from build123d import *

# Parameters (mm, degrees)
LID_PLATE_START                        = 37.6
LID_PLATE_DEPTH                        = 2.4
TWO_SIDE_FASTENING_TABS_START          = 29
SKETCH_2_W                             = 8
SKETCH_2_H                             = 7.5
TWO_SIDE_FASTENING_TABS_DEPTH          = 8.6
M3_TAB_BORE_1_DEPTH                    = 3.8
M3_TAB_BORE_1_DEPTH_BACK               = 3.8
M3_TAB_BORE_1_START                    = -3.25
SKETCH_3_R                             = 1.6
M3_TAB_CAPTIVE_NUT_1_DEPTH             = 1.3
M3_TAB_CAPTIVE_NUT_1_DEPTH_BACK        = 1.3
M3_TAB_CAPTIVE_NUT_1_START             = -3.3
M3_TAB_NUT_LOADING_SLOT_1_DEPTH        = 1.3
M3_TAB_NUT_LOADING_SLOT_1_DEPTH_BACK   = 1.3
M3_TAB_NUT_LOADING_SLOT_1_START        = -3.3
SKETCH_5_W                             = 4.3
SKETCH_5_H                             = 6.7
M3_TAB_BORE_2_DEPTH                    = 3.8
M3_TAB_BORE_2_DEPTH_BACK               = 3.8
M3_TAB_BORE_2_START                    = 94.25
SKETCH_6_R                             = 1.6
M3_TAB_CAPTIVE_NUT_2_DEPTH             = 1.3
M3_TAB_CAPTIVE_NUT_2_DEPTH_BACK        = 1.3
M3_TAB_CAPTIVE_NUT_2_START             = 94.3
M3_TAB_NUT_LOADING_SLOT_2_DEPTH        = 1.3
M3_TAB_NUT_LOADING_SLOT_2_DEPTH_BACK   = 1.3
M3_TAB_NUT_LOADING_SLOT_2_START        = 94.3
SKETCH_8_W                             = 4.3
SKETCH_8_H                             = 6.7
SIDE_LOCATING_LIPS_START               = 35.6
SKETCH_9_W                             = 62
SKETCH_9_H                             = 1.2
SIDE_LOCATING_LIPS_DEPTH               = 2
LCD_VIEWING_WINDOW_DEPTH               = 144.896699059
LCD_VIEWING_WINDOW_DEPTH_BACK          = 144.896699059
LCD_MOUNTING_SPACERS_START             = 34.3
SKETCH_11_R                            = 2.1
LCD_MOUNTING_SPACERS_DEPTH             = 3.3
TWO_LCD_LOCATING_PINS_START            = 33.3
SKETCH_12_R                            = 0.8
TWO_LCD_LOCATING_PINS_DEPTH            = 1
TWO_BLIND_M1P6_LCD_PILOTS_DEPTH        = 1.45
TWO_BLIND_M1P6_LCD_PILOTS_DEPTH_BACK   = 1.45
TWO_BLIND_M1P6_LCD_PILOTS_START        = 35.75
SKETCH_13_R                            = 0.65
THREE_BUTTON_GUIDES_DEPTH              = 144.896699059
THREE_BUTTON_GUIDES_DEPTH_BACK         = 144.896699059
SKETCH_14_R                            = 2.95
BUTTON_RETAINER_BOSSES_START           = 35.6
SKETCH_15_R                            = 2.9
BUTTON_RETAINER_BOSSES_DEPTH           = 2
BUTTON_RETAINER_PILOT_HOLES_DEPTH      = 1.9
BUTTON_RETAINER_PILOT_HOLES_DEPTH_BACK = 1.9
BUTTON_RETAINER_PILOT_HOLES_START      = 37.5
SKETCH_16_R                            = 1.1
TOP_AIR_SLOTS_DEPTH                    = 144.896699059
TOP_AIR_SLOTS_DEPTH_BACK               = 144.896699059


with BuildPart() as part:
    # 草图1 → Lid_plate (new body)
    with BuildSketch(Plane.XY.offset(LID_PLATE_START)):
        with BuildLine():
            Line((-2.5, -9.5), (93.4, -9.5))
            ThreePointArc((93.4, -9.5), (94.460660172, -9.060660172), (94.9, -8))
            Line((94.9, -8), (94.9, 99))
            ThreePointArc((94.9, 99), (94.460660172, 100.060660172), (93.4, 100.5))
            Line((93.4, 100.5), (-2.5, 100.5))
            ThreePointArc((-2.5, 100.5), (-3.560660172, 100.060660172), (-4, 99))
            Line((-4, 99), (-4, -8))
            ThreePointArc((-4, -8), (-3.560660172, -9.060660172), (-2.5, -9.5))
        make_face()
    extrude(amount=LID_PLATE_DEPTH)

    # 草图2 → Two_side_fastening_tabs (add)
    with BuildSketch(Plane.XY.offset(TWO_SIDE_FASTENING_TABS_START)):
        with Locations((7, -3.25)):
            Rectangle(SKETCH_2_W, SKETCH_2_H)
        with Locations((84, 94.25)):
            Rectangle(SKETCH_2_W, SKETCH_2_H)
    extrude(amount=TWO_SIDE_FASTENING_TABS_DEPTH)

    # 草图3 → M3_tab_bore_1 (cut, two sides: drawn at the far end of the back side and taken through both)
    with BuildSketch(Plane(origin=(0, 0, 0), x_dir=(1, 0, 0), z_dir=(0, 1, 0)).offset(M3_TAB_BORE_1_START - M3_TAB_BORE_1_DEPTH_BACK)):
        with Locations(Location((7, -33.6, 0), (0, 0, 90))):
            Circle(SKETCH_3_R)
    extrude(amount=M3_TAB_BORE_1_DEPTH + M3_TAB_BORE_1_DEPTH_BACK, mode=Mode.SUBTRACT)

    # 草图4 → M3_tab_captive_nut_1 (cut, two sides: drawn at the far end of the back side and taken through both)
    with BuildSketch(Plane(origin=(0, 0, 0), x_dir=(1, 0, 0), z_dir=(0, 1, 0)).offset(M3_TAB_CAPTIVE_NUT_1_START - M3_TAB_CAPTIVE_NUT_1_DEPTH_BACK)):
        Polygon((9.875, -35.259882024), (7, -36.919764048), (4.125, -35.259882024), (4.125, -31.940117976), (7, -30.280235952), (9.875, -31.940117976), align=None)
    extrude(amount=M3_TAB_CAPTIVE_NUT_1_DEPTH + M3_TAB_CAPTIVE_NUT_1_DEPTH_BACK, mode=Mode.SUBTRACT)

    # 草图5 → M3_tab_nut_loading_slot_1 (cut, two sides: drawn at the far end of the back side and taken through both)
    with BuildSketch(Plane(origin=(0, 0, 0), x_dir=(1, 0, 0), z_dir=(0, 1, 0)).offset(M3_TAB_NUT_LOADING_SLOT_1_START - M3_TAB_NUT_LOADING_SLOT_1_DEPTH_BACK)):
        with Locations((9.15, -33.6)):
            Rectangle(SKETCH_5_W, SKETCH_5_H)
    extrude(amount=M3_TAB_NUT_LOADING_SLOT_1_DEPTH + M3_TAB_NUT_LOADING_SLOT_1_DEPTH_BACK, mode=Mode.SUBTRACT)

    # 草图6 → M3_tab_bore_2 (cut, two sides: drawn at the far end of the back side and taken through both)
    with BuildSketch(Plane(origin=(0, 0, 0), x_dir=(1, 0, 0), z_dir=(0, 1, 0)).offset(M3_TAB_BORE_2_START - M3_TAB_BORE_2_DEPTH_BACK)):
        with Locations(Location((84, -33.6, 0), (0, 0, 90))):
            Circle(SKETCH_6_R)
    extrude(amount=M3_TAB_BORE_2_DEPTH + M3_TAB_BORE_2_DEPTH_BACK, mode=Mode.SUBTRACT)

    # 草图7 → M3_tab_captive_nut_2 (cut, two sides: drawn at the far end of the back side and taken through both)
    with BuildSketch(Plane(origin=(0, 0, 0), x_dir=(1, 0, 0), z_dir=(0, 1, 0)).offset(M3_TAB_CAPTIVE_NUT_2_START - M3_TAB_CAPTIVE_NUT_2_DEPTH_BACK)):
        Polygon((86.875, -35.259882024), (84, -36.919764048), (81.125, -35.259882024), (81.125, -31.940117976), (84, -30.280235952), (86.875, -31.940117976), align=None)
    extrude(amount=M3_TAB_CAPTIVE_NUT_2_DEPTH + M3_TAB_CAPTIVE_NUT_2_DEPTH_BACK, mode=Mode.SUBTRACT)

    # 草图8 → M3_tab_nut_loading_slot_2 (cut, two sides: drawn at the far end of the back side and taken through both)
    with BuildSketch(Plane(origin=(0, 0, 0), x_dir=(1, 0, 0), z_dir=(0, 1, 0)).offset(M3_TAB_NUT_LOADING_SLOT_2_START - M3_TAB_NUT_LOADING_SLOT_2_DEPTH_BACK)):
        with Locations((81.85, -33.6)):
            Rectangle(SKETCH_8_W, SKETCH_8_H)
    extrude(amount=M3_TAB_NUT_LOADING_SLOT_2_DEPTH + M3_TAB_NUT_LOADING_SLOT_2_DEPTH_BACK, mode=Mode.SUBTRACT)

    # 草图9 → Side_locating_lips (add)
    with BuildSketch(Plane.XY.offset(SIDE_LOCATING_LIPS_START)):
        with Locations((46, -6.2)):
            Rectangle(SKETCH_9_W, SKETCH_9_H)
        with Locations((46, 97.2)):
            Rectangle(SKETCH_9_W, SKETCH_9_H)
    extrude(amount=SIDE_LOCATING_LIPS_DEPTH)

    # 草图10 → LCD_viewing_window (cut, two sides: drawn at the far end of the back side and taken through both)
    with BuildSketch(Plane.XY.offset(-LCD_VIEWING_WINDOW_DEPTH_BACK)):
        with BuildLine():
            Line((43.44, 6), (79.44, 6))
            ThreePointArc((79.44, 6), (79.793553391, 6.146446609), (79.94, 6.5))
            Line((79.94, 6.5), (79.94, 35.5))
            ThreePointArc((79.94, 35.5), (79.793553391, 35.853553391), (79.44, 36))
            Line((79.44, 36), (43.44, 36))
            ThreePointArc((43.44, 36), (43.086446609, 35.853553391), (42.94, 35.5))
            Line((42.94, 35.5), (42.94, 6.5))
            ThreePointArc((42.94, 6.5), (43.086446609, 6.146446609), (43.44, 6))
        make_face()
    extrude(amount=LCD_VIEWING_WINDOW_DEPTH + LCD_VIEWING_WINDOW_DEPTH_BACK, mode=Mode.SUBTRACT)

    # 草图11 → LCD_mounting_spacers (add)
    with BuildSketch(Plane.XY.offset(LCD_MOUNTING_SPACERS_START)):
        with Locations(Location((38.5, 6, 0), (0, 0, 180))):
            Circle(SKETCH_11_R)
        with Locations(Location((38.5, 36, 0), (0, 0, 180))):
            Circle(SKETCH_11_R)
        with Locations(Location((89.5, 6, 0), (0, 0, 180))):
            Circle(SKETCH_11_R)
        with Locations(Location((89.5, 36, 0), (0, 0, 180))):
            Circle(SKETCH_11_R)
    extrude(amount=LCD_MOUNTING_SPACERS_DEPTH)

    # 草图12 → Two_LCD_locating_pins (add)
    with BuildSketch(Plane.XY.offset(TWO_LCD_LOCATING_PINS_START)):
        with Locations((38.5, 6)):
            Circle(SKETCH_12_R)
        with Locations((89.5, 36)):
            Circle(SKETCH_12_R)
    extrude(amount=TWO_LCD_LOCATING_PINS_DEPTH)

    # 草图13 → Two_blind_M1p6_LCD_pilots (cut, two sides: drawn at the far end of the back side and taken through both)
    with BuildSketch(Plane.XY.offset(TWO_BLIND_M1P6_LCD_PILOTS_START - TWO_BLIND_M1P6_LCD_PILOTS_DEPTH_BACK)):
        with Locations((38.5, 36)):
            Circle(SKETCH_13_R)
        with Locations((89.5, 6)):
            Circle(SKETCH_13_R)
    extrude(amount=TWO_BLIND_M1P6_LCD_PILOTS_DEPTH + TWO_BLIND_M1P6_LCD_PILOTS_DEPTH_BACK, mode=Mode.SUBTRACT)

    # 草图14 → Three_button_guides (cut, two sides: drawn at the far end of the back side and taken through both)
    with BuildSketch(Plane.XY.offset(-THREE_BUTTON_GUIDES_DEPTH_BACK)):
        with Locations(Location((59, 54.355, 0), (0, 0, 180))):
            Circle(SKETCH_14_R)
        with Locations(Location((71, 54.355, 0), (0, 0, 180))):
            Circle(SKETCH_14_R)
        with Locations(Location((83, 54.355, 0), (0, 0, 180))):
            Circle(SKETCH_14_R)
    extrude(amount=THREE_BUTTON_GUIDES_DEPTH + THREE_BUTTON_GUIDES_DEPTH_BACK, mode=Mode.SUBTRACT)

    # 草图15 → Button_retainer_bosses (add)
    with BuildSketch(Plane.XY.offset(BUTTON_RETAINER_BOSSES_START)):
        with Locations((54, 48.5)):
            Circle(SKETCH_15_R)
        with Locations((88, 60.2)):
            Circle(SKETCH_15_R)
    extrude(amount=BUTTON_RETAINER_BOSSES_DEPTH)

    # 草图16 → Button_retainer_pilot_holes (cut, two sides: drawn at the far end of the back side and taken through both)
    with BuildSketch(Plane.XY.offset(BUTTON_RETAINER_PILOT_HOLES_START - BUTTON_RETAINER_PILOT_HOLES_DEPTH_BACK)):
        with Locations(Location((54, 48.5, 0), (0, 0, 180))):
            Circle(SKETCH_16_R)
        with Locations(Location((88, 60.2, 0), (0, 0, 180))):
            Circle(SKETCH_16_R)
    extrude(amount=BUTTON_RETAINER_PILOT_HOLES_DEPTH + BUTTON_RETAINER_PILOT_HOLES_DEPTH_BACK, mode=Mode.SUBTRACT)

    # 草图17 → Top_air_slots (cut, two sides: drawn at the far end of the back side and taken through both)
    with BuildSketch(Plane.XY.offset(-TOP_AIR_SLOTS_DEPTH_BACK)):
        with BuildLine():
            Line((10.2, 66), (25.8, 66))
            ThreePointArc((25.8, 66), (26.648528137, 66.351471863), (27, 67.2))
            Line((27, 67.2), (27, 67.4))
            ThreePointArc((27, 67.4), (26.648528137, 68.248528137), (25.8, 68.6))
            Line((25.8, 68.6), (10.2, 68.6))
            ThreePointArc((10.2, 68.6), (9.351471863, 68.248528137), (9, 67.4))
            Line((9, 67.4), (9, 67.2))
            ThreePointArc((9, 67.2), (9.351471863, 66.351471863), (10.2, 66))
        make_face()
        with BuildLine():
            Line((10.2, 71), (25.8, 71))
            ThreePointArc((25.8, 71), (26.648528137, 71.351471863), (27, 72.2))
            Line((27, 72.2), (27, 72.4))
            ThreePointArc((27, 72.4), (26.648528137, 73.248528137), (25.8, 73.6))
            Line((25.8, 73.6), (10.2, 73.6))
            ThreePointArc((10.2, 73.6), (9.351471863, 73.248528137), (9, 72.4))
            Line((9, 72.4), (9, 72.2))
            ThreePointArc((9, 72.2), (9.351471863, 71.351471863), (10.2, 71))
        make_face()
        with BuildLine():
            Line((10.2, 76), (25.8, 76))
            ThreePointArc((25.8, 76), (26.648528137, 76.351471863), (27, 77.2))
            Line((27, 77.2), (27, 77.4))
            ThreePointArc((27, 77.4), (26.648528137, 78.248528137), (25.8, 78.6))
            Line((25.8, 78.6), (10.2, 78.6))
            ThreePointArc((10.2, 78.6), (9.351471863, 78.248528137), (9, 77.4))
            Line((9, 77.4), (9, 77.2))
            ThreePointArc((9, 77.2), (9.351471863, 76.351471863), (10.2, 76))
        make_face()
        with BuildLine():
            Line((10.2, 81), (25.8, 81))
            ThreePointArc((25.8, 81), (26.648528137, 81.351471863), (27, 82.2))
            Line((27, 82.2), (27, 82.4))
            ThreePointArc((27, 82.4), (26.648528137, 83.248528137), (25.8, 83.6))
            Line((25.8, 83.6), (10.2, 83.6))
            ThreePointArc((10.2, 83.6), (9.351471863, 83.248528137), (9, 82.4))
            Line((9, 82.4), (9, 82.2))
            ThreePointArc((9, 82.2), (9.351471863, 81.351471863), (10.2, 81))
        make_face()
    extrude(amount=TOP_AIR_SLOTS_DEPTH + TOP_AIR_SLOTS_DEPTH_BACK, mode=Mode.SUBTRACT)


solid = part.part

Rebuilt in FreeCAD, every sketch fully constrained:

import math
import FreeCAD as App
import Part
import Sketcher
from FreeCAD import Vector
Q = App.Units.Quantity

doc = App.newDocument("Part")
body = doc.addObject("PartDesign::Body", "Body")

# Sketch on XY plane
sketch1 = doc.addObject("Sketcher::SketchObject", "Sketch")
body.addObject(sketch1)
sketch1.AttachmentSupport = (doc.XY_Plane, [""])
sketch1.MapMode = "FlatFace"
sketch1.AttachmentOffset = App.Placement(Vector(0, 0, 37.6), App.Rotation())
sketch1.addGeometry([
    Part.LineSegment(Vector(-2.5, -9.5, 0), Vector(93.4, -9.5, 0)),  # 0
    Part.ArcOfCircle(Part.Circle(Vector(93.4, -8, 0), Vector(0, 0, 1), 1.5), math.radians(-90), math.radians(0)),  # 1
    Part.LineSegment(Vector(94.9, -8, 0), Vector(94.9, 99, 0)),  # 2
    Part.ArcOfCircle(Part.Circle(Vector(93.4, 99, 0), Vector(0, 0, 1), 1.5), math.radians(0), math.radians(90)),  # 3
    Part.LineSegment(Vector(93.4, 100.5, 0), Vector(-2.5, 100.5, 0)),  # 4
    Part.ArcOfCircle(Part.Circle(Vector(-2.5, 99, 0), Vector(0, 0, 1), 1.5), math.radians(90), math.radians(180)),  # 5
    Part.LineSegment(Vector(-4, 99, 0), Vector(-4, -8, 0)),  # 6
    Part.ArcOfCircle(Part.Circle(Vector(-2.5, -8, 0), Vector(0, 0, 1), 1.5), math.radians(180), math.radians(270)),  # 7
], False)
sketch1.addConstraint([
    Sketcher.Constraint("Tangent", 0, 2, 1, 1),
    Sketcher.Constraint("Tangent", 1, 2, 2, 1),
    Sketcher.Constraint("Tangent", 2, 2, 3, 1),
    Sketcher.Constraint("Tangent", 3, 2, 4, 1),
    Sketcher.Constraint("Tangent", 4, 2, 5, 1),
    Sketcher.Constraint("Tangent", 5, 2, 6, 1),
    Sketcher.Constraint("Tangent", 6, 2, 7, 1),
    Sketcher.Constraint("Tangent", 7, 2, 0, 1),
    Sketcher.Constraint("Horizontal", 0),
    Sketcher.Constraint("Vertical", 2),
    Sketcher.Constraint("Horizontal", 4),
    Sketcher.Constraint("Vertical", 6),
    Sketcher.Constraint("Equal", 1, 3),
    Sketcher.Constraint("Equal", 3, 5),
    Sketcher.Constraint("Equal", 5, 7),
    Sketcher.Constraint("Radius", 1, Q("1.5 mm")),
    Sketcher.Constraint("DistanceY", 2, 1, 2, 2, Q("107 mm")),
    Sketcher.Constraint("DistanceX", 0, 1, 0, 2, Q("95.9 mm")),
    Sketcher.Constraint("DistanceY", 1, 3, -1, 1, Q("8 mm")),
    Sketcher.Constraint("DistanceX", 5, 2, -1, 1, Q("4 mm")),
])
pad1 = doc.addObject("PartDesign::Pad", "Pad")
body.addObject(pad1)
pad1.Profile = sketch1
pad1.Length = 2.4

# Sketch on XY plane
sketch2 = doc.addObject("Sketcher::SketchObject", "Sketch001")
body.addObject(sketch2)
sketch2.AttachmentSupport = (doc.XY_Plane, [""])
sketch2.MapMode = "FlatFace"
sketch2.AttachmentOffset = App.Placement(Vector(0, 0, 29), App.Rotation())
sketch2.addGeometry([
    Part.LineSegment(Vector(3, 0, 0), Vector(3, -7, 0)),  # 0
    Part.LineSegment(Vector(3, -7, 0), Vector(11, -7, 0)),  # 1
    Part.LineSegment(Vector(11, -7, 0), Vector(11, 0, 0)),  # 2
    Part.LineSegment(Vector(11, 0, 0), Vector(3, 0, 0)),  # 3
    Part.LineSegment(Vector(80, 98, 0), Vector(80, 90, 0)),  # 4
    Part.LineSegment(Vector(80, 90, 0), Vector(88, 90, 0)),  # 5
    Part.LineSegment(Vector(88, 90, 0), Vector(88, 98, 0)),  # 6
    Part.LineSegment(Vector(88, 98, 0), Vector(80, 98, 0)),  # 7
], False)
sketch2.addConstraint([
    Sketcher.Constraint("Coincident", 0, 2, 1, 1),
    Sketcher.Constraint("Coincident", 1, 2, 2, 1),
    Sketcher.Constraint("Coincident", 2, 2, 3, 1),
    Sketcher.Constraint("Coincident", 3, 2, 0, 1),
    Sketcher.Constraint("Coincident", 4, 2, 5, 1),
    Sketcher.Constraint("Coincident", 5, 2, 6, 1),
    Sketcher.Constraint("Coincident", 6, 2, 7, 1),
    Sketcher.Constraint("Coincident", 7, 2, 4, 1),
    Sketcher.Constraint("Vertical", 0),
    Sketcher.Constraint("Horizontal", 1),
    Sketcher.Constraint("Vertical", 2),
    Sketcher.Constraint("Horizontal", 3),
    Sketcher.Constraint("Vertical", 4),
    Sketcher.Constraint("Horizontal", 5),
    Sketcher.Constraint("Vertical", 6),
    Sketcher.Constraint("Horizontal", 7),
    Sketcher.Constraint("Equal", 3, 5),
    Sketcher.Constraint("Equal", 2, 4),
    Sketcher.Constraint("DistanceX", 1, 1, 1, 2, Q("8 mm")),
    Sketcher.Constraint("DistanceY", 0, 2, 0, 1, Q("7.5 mm")),
    Sketcher.Constraint("DistanceX", -1, 1, 0, 2, Q("3 mm")),
    Sketcher.Constraint("DistanceY", 0, 2, -1, 1, Q("7 mm")),
    Sketcher.Constraint("DistanceX", -1, 1, 4, 2, Q("80 mm")),
    Sketcher.Constraint("DistanceY", -1, 1, 6, 2, Q("98 mm")),
])
pad2 = doc.addObject("PartDesign::Pad", "Pad001")
body.addObject(pad2)
pad2.Profile = sketch2
pad2.Length = 8.6

# Sketch on XZ plane
sketch3 = doc.addObject("Sketcher::SketchObject", "Sketch002")
body.addObject(sketch3)
sketch3.AttachmentSupport = (doc.XZ_Plane, [""])
sketch3.MapMode = "FlatFace"
sketch3.AttachmentOffset = App.Placement(Vector(0, 0, 3.25), App.Rotation())
sketch3.addGeometry(Part.Circle(Vector(7, 33.6, 0), Vector(0, 0, 1), 1.6), False)
sketch3.addConstraint([
    Sketcher.Constraint("Diameter", 0, Q("3.2 mm")),
    Sketcher.Constraint("DistanceX", -1, 1, 0, 3, Q("7 mm")),
    Sketcher.Constraint("DistanceY", -1, 1, 0, 3, Q("33.6 mm")),
])
pocket1 = doc.addObject("PartDesign::Pocket", "Pocket")
body.addObject(pocket1)
pocket1.Profile = sketch3
pocket1.Type = "ThroughAll"
pocket1.Midplane = True

# Sketch on XZ plane
sketch4 = doc.addObject("Sketcher::SketchObject", "Sketch003")
body.addObject(sketch4)
sketch4.AttachmentSupport = (doc.XZ_Plane, [""])
sketch4.MapMode = "FlatFace"
sketch4.AttachmentOffset = App.Placement(Vector(0, 0, 3.3), App.Rotation())
sketch4.addGeometry([
    Part.LineSegment(Vector(7, 36.9, 0), Vector(9.9, 35.3, 0)),  # 0
    Part.LineSegment(Vector(9.9, 35.3, 0), Vector(9.9, 31.9, 0)),  # 1
    Part.LineSegment(Vector(9.9, 31.9, 0), Vector(7, 30.3, 0)),  # 2
    Part.LineSegment(Vector(7, 30.3, 0), Vector(4.1, 31.9, 0)),  # 3
    Part.LineSegment(Vector(4.1, 31.9, 0), Vector(4.1, 35.3, 0)),  # 4
    Part.LineSegment(Vector(4.1, 35.3, 0), Vector(7, 36.9, 0)),  # 5
], False)
sketch4.addConstraint([
    Sketcher.Constraint("Coincident", 0, 2, 1, 1),
    Sketcher.Constraint("Coincident", 1, 2, 2, 1),
    Sketcher.Constraint("Coincident", 2, 2, 3, 1),
    Sketcher.Constraint("Coincident", 3, 2, 4, 1),
    Sketcher.Constraint("Coincident", 4, 2, 5, 1),
    Sketcher.Constraint("Coincident", 5, 2, 0, 1),
    Sketcher.Constraint("Vertical", 1),
    Sketcher.Constraint("Vertical", 4),
    Sketcher.Constraint("Parallel", 0, 3),
    Sketcher.Constraint("Parallel", 2, 5),
    Sketcher.Constraint("Horizontal", 1, 2, 3, 2),
    Sketcher.Constraint("Horizontal", 0, 2, 4, 2),
    Sketcher.Constraint("Vertical", 2, 2, 5, 2),
    Sketcher.Constraint("Angle", 0, Q("-30 deg")),
    Sketcher.Constraint("DistanceX", -1, 1, 2, 2, Q("7 mm")),
    Sketcher.Constraint("DistanceX", 3, 2, 1, 2, Q("5.75 mm")),
    Sketcher.Constraint("DistanceY", 1, 2, 1, 1, Q("3.319764 mm")),
    Sketcher.Constraint("DistanceY", -1, 1, 0, 2, Q("35.259882 mm")),
])
pocket2 = doc.addObject("PartDesign::Pocket", "Pocket001")
body.addObject(pocket2)
pocket2.Profile = sketch4
pocket2.Type = "TwoLengths"
pocket2.Length = 1.3
pocket2.Length2 = 1.3

# Sketch on XZ plane
sketch5 = doc.addObject("Sketcher::SketchObject", "Sketch004")
body.addObject(sketch5)
sketch5.AttachmentSupport = (doc.XZ_Plane, [""])
sketch5.MapMode = "FlatFace"
sketch5.AttachmentOffset = App.Placement(Vector(0, 0, 3.3), App.Rotation())
sketch5.addGeometry([
    Part.LineSegment(Vector(7, 30.2, 0), Vector(7, 37, 0)),
    Part.LineSegment(Vector(7, 37, 0), Vector(11.3, 37, 0)),
    Part.LineSegment(Vector(11.3, 37, 0), Vector(11.3, 30.2, 0)),
    Part.LineSegment(Vector(11.3, 30.2, 0), Vector(7, 30.2, 0)),
], False)
sketch5.addConstraint([
    Sketcher.Constraint("Coincident", 0, 2, 1, 1),
    Sketcher.Constraint("Coincident", 1, 2, 2, 1),
    Sketcher.Constraint("Coincident", 2, 2, 3, 1),
    Sketcher.Constraint("Coincident", 3, 2, 0, 1),
    Sketcher.Constraint("Vertical", 0),
    Sketcher.Constraint("Horizontal", 1),
    Sketcher.Constraint("Vertical", 2),
    Sketcher.Constraint("Horizontal", 3),
    Sketcher.Constraint("DistanceX", 1, 1, 1, 2, Q("4.3 mm")),
    Sketcher.Constraint("DistanceY", 0, 1, 0, 2, Q("6.7 mm")),
    Sketcher.Constraint("DistanceX", -1, 1, 0, 2, Q("7 mm")),
    Sketcher.Constraint("DistanceY", -1, 1, 0, 2, Q("36.95 mm")),
])
pocket3 = doc.addObject("PartDesign::Pocket", "Pocket002")
body.addObject(pocket3)
pocket3.Profile = sketch5
pocket3.Type = "TwoLengths"
pocket3.Length = 1.3
pocket3.Length2 = 1.3

# Sketch on XZ plane
sketch6 = doc.addObject("Sketcher::SketchObject", "Sketch005")
body.addObject(sketch6)
sketch6.AttachmentSupport = (doc.XZ_Plane, [""])
sketch6.MapMode = "FlatFace"
sketch6.AttachmentOffset = App.Placement(Vector(0, 0, -94.25), App.Rotation())
sketch6.addGeometry(Part.Circle(Vector(84, 33.6, 0), Vector(0, 0, 1), 1.6), False)
sketch6.addConstraint([
    Sketcher.Constraint("Diameter", 0, Q("3.2 mm")),
    Sketcher.Constraint("DistanceX", -1, 1, 0, 3, Q("84 mm")),
    Sketcher.Constraint("DistanceY", -1, 1, 0, 3, Q("33.6 mm")),
])
pocket4 = doc.addObject("PartDesign::Pocket", "Pocket003")
body.addObject(pocket4)
pocket4.Profile = sketch6
pocket4.Type = "ThroughAll"
pocket4.Midplane = True

# Sketch on XZ plane
sketch7 = doc.addObject("Sketcher::SketchObject", "Sketch006")
body.addObject(sketch7)
sketch7.AttachmentSupport = (doc.XZ_Plane, [""])
sketch7.MapMode = "FlatFace"
sketch7.AttachmentOffset = App.Placement(Vector(0, 0, -94.3), App.Rotation())
sketch7.addGeometry([
    Part.LineSegment(Vector(84, 36.9, 0), Vector(86.9, 35.3, 0)),  # 0
    Part.LineSegment(Vector(86.9, 35.3, 0), Vector(86.9, 31.9, 0)),  # 1
    Part.LineSegment(Vector(86.9, 31.9, 0), Vector(84, 30.3, 0)),  # 2
    Part.LineSegment(Vector(84, 30.3, 0), Vector(81.1, 31.9, 0)),  # 3
    Part.LineSegment(Vector(81.1, 31.9, 0), Vector(81.1, 35.3, 0)),  # 4
    Part.LineSegment(Vector(81.1, 35.3, 0), Vector(84, 36.9, 0)),  # 5
], False)
sketch7.addConstraint([
    Sketcher.Constraint("Coincident", 0, 2, 1, 1),
    Sketcher.Constraint("Coincident", 1, 2, 2, 1),
    Sketcher.Constraint("Coincident", 2, 2, 3, 1),
    Sketcher.Constraint("Coincident", 3, 2, 4, 1),
    Sketcher.Constraint("Coincident", 4, 2, 5, 1),
    Sketcher.Constraint("Coincident", 5, 2, 0, 1),
    Sketcher.Constraint("Vertical", 1),
    Sketcher.Constraint("Vertical", 4),
    Sketcher.Constraint("Parallel", 0, 3),
    Sketcher.Constraint("Parallel", 2, 5),
    Sketcher.Constraint("Horizontal", 1, 2, 3, 2),
    Sketcher.Constraint("Horizontal", 0, 2, 4, 2),
    Sketcher.Constraint("Vertical", 2, 2, 5, 2),
    Sketcher.Constraint("Angle", 0, Q("-30 deg")),
    Sketcher.Constraint("DistanceX", -1, 1, 2, 2, Q("84 mm")),
    Sketcher.Constraint("DistanceX", 3, 2, 1, 2, Q("5.75 mm")),
    Sketcher.Constraint("DistanceY", 1, 2, 1, 1, Q("3.319764 mm")),
    Sketcher.Constraint("DistanceY", -1, 1, 0, 2, Q("35.259882 mm")),
])
pocket5 = doc.addObject("PartDesign::Pocket", "Pocket004")
body.addObject(pocket5)
pocket5.Profile = sketch7
pocket5.Type = "TwoLengths"
pocket5.Length = 1.3
pocket5.Length2 = 1.3

# Sketch on XZ plane
sketch8 = doc.addObject("Sketcher::SketchObject", "Sketch007")
body.addObject(sketch8)
sketch8.AttachmentSupport = (doc.XZ_Plane, [""])
sketch8.MapMode = "FlatFace"
sketch8.AttachmentOffset = App.Placement(Vector(0, 0, -94.3), App.Rotation())
sketch8.addGeometry([
    Part.LineSegment(Vector(79.7, 30.2, 0), Vector(79.7, 37, 0)),
    Part.LineSegment(Vector(79.7, 37, 0), Vector(84, 37, 0)),
    Part.LineSegment(Vector(84, 37, 0), Vector(84, 30.2, 0)),
    Part.LineSegment(Vector(84, 30.2, 0), Vector(79.7, 30.2, 0)),
], False)
sketch8.addConstraint([
    Sketcher.Constraint("Coincident", 0, 2, 1, 1),
    Sketcher.Constraint("Coincident", 1, 2, 2, 1),
    Sketcher.Constraint("Coincident", 2, 2, 3, 1),
    Sketcher.Constraint("Coincident", 3, 2, 0, 1),
    Sketcher.Constraint("Vertical", 0),
    Sketcher.Constraint("Horizontal", 1),
    Sketcher.Constraint("Vertical", 2),
    Sketcher.Constraint("Horizontal", 3),
    Sketcher.Constraint("DistanceX", 1, 1, 1, 2, Q("4.3 mm")),
    Sketcher.Constraint("DistanceY", 0, 1, 0, 2, Q("6.7 mm")),
    Sketcher.Constraint("DistanceX", -1, 1, 1, 2, Q("84 mm")),
    Sketcher.Constraint("DistanceY", -1, 1, 0, 2, Q("36.95 mm")),
])
pocket6 = doc.addObject("PartDesign::Pocket", "Pocket005")
body.addObject(pocket6)
pocket6.Profile = sketch8
pocket6.Type = "TwoLengths"
pocket6.Length = 1.3
pocket6.Length2 = 1.3

# Sketch on XY plane
sketch9 = doc.addObject("Sketcher::SketchObject", "Sketch008")
body.addObject(sketch9)
sketch9.AttachmentSupport = (doc.XY_Plane, [""])
sketch9.MapMode = "FlatFace"
sketch9.AttachmentOffset = App.Placement(Vector(0, 0, 35.6), App.Rotation())
sketch9.addGeometry([
    Part.LineSegment(Vector(15, -5.6, 0), Vector(15, -6.8, 0)),  # 0
    Part.LineSegment(Vector(15, -6.8, 0), Vector(77, -6.8, 0)),  # 1
    Part.LineSegment(Vector(77, -6.8, 0), Vector(77, -5.6, 0)),  # 2
    Part.LineSegment(Vector(77, -5.6, 0), Vector(15, -5.6, 0)),  # 3
    Part.LineSegment(Vector(15, 97.8, 0), Vector(15, 96.6, 0)),  # 4
    Part.LineSegment(Vector(15, 96.6, 0), Vector(77, 96.6, 0)),  # 5
    Part.LineSegment(Vector(77, 96.6, 0), Vector(77, 97.8, 0)),  # 6
    Part.LineSegment(Vector(77, 97.8, 0), Vector(15, 97.8, 0)),  # 7
], False)
sketch9.addConstraint([
    Sketcher.Constraint("Coincident", 0, 2, 1, 1),
    Sketcher.Constraint("Coincident", 1, 2, 2, 1),
    Sketcher.Constraint("Coincident", 2, 2, 3, 1),
    Sketcher.Constraint("Coincident", 3, 2, 0, 1),
    Sketcher.Constraint("Coincident", 4, 2, 5, 1),
    Sketcher.Constraint("Coincident", 5, 2, 6, 1),
    Sketcher.Constraint("Coincident", 6, 2, 7, 1),
    Sketcher.Constraint("Coincident", 7, 2, 4, 1),
    Sketcher.Constraint("Vertical", 0),
    Sketcher.Constraint("Horizontal", 1),
    Sketcher.Constraint("Vertical", 2),
    Sketcher.Constraint("Horizontal", 3),
    Sketcher.Constraint("Vertical", 4),
    Sketcher.Constraint("Horizontal", 5),
    Sketcher.Constraint("Vertical", 6),
    Sketcher.Constraint("Horizontal", 7),
    Sketcher.Constraint("Vertical", 3, 2, 4, 2),
    Sketcher.Constraint("Vertical", 2, 2, 5, 2),
    Sketcher.Constraint("Equal", 2, 4),
    Sketcher.Constraint("DistanceX", 1, 1, 1, 2, Q("62 mm")),
    Sketcher.Constraint("DistanceY", 0, 2, 0, 1, Q("1.2 mm")),
    Sketcher.Constraint("DistanceX", -1, 1, 0, 2, Q("15 mm")),
    Sketcher.Constraint("DistanceY", 0, 2, -1, 1, Q("6.8 mm")),
    Sketcher.Constraint("DistanceY", -1, 1, 4, 2, Q("96.6 mm")),
])
pad3 = doc.addObject("PartDesign::Pad", "Pad002")
body.addObject(pad3)
pad3.Profile = sketch9
pad3.Length = 2

# Sketch on XY plane
sketch10 = doc.addObject("Sketcher::SketchObject", "Sketch009")
body.addObject(sketch10)
sketch10.AttachmentSupport = (doc.XY_Plane, [""])
sketch10.MapMode = "FlatFace"
sketch10.addGeometry([
    Part.LineSegment(Vector(43.44, 6, 0), Vector(79.44, 6, 0)),  # 0
    Part.ArcOfCircle(Part.Circle(Vector(79.44, 6.5, 0), Vector(0, 0, 1), 0.5), math.radians(-90), math.radians(0)),  # 1
    Part.LineSegment(Vector(79.94, 6.5, 0), Vector(79.94, 35.5, 0)),  # 2
    Part.ArcOfCircle(Part.Circle(Vector(79.44, 35.5, 0), Vector(0, 0, 1), 0.5), math.radians(0), math.radians(90)),  # 3
    Part.LineSegment(Vector(79.44, 36, 0), Vector(43.44, 36, 0)),  # 4
    Part.ArcOfCircle(Part.Circle(Vector(43.44, 35.5, 0), Vector(0, 0, 1), 0.5), math.radians(90), math.radians(180)),  # 5
    Part.LineSegment(Vector(42.94, 35.5, 0), Vector(42.94, 6.5, 0)),  # 6
    Part.ArcOfCircle(Part.Circle(Vector(43.44, 6.5, 0), Vector(0, 0, 1), 0.5), math.radians(180), math.radians(270)),  # 7
], False)
sketch10.addConstraint([
    Sketcher.Constraint("Tangent", 0, 2, 1, 1),
    Sketcher.Constraint("Tangent", 1, 2, 2, 1),
    Sketcher.Constraint("Tangent", 2, 2, 3, 1),
    Sketcher.Constraint("Tangent", 3, 2, 4, 1),
    Sketcher.Constraint("Tangent", 4, 2, 5, 1),
    Sketcher.Constraint("Tangent", 5, 2, 6, 1),
    Sketcher.Constraint("Tangent", 6, 2, 7, 1),
    Sketcher.Constraint("Tangent", 7, 2, 0, 1),
    Sketcher.Constraint("Horizontal", 0),
    Sketcher.Constraint("Vertical", 2),
    Sketcher.Constraint("Horizontal", 4),
    Sketcher.Constraint("Vertical", 6),
    Sketcher.Constraint("Equal", 1, 3),
    Sketcher.Constraint("Equal", 3, 5),
    Sketcher.Constraint("Equal", 5, 7),
    Sketcher.Constraint("Radius", 1, Q("0.5 mm")),
    Sketcher.Constraint("DistanceX", 0, 1, 0, 2, Q("36 mm")),
    Sketcher.Constraint("DistanceY", 2, 1, 2, 2, Q("29 mm")),
    Sketcher.Constraint("DistanceY", -1, 1, 0, 2, Q("6 mm")),
    Sketcher.Constraint("DistanceX", -1, 1, 1, 3, Q("79.44 mm")),
])
pocket7 = doc.addObject("PartDesign::Pocket", "Pocket006")
body.addObject(pocket7)
pocket7.Profile = sketch10
pocket7.Type = "ThroughAll"
pocket7.Midplane = True

# Sketch on XY plane
sketch11 = doc.addObject("Sketcher::SketchObject", "Sketch010")
body.addObject(sketch11)
sketch11.AttachmentSupport = (doc.XY_Plane, [""])
sketch11.MapMode = "FlatFace"
sketch11.AttachmentOffset = App.Placement(Vector(0, 0, 34.3), App.Rotation())
sketch11.addGeometry([
    Part.Circle(Vector(38.5, 6, 0), Vector(0, 0, 1), 2.1),
    Part.Circle(Vector(38.5, 36, 0), Vector(0, 0, 1), 2.1),
    Part.Circle(Vector(89.5, 6, 0), Vector(0, 0, 1), 2.1),
    Part.Circle(Vector(89.5, 36, 0), Vector(0, 0, 1), 2.1),
], False)
sketch11.addConstraint([
    Sketcher.Constraint("Equal", 0, 1),
    Sketcher.Constraint("Equal", 1, 2),
    Sketcher.Constraint("Equal", 2, 3),
    Sketcher.Constraint("Horizontal", 0, 3, 2, 3),
    Sketcher.Constraint("Horizontal", 1, 3, 3, 3),
    Sketcher.Constraint("Vertical", 0, 3, 1, 3),
    Sketcher.Constraint("Vertical", 2, 3, 3, 3),
    Sketcher.Constraint("Diameter", 0, Q("4.2 mm")),
    Sketcher.Constraint("DistanceY", -1, 1, 0, 3, Q("6 mm")),
    Sketcher.Constraint("DistanceY", -1, 1, 1, 3, Q("36 mm")),
    Sketcher.Constraint("DistanceX", 0, 3, 2, 3, Q("51 mm")),
    Sketcher.Constraint("DistanceX", -1, 1, 0, 3, Q("38.5 mm")),
])
pad4 = doc.addObject("PartDesign::Pad", "Pad003")
body.addObject(pad4)
pad4.Profile = sketch11
pad4.Length = 3.3

# Sketch on XY plane
sketch12 = doc.addObject("Sketcher::SketchObject", "Sketch011")
body.addObject(sketch12)
sketch12.AttachmentSupport = (doc.XY_Plane, [""])
sketch12.MapMode = "FlatFace"
sketch12.AttachmentOffset = App.Placement(Vector(0, 0, 33.3), App.Rotation())
sketch12.addGeometry([
    Part.Circle(Vector(38.5, 6, 0), Vector(0, 0, 1), 0.8),
    Part.Circle(Vector(89.5, 36, 0), Vector(0, 0, 1), 0.8),
], False)
sketch12.addConstraint([
    Sketcher.Constraint("Equal", 0, 1),
    Sketcher.Constraint("Diameter", 0, Q("1.6 mm")),
    Sketcher.Constraint("DistanceY", -1, 1, 0, 3, Q("6 mm")),
    Sketcher.Constraint("DistanceY", -1, 1, 1, 3, Q("36 mm")),
    Sketcher.Constraint("DistanceX", 0, 3, 1, 3, Q("51 mm")),
    Sketcher.Constraint("DistanceX", -1, 1, 0, 3, Q("38.5 mm")),
])
pad5 = doc.addObject("PartDesign::Pad", "Pad004")
body.addObject(pad5)
pad5.Profile = sketch12
pad5.Length = 1

# Sketch on XY plane
sketch13 = doc.addObject("Sketcher::SketchObject", "Sketch012")
body.addObject(sketch13)
sketch13.AttachmentSupport = (doc.XY_Plane, [""])
sketch13.MapMode = "FlatFace"
sketch13.AttachmentOffset = App.Placement(Vector(0, 0, 35.75), App.Rotation())
sketch13.addGeometry([
    Part.Circle(Vector(38.5, 36, 0), Vector(0, 0, 1), 0.7),
    Part.Circle(Vector(89.5, 6, 0), Vector(0, 0, 1), 0.7),
], False)
sketch13.addConstraint([
    Sketcher.Constraint("Equal", 0, 1),
    Sketcher.Constraint("Diameter", 0, Q("1.3 mm")),
    Sketcher.Constraint("DistanceY", -1, 1, 0, 3, Q("36 mm")),
    Sketcher.Constraint("DistanceY", -1, 1, 1, 3, Q("6 mm")),
    Sketcher.Constraint("DistanceX", 0, 3, 1, 3, Q("51 mm")),
    Sketcher.Constraint("DistanceX", -1, 1, 0, 3, Q("38.5 mm")),
])
pocket8 = doc.addObject("PartDesign::Pocket", "Pocket007")
body.addObject(pocket8)
pocket8.Profile = sketch13
pocket8.Type = "TwoLengths"
pocket8.Length = 1.45
pocket8.Length2 = 1.45
pocket8.Reversed = True

# Sketch on XY plane
sketch14 = doc.addObject("Sketcher::SketchObject", "Sketch013")
body.addObject(sketch14)
sketch14.AttachmentSupport = (doc.XY_Plane, [""])
sketch14.MapMode = "FlatFace"
sketch14.addGeometry([
    Part.Circle(Vector(59, 54.4, 0), Vector(0, 0, 1), 3),
    Part.Circle(Vector(71, 54.4, 0), Vector(0, 0, 1), 3),
    Part.Circle(Vector(83, 54.4, 0), Vector(0, 0, 1), 3),
], False)
sketch14.addConstraint([
    Sketcher.Constraint("Equal", 0, 1),
    Sketcher.Constraint("Equal", 1, 2),
    Sketcher.Constraint("Horizontal", 0, 3, 1, 3),
    Sketcher.Constraint("Horizontal", 1, 3, 2, 3),
    Sketcher.Constraint("Diameter", 0, Q("5.9 mm")),
    Sketcher.Constraint("DistanceX", -1, 1, 0, 3, Q("59 mm")),
    Sketcher.Constraint("DistanceX", -1, 1, 1, 3, Q("71 mm")),
    Sketcher.Constraint("DistanceX", -1, 1, 2, 3, Q("83 mm")),
    Sketcher.Constraint("DistanceY", -1, 1, 0, 3, Q("54.355 mm")),
])
pocket9 = doc.addObject("PartDesign::Pocket", "Pocket008")
body.addObject(pocket9)
pocket9.Profile = sketch14
pocket9.Type = "ThroughAll"
pocket9.Midplane = True

# Sketch on XY plane
sketch15 = doc.addObject("Sketcher::SketchObject", "Sketch014")
body.addObject(sketch15)
sketch15.AttachmentSupport = (doc.XY_Plane, [""])
sketch15.MapMode = "FlatFace"
sketch15.AttachmentOffset = App.Placement(Vector(0, 0, 35.6), App.Rotation())
sketch15.addGeometry([
    Part.Circle(Vector(54, 48.5, 0), Vector(0, 0, 1), 2.9),
    Part.Circle(Vector(88, 60.2, 0), Vector(0, 0, 1), 2.9),
], False)
sketch15.addConstraint([
    Sketcher.Constraint("Equal", 0, 1),
    Sketcher.Constraint("Diameter", 0, Q("5.8 mm")),
    Sketcher.Constraint("DistanceX", -1, 1, 0, 3, Q("54 mm")),
    Sketcher.Constraint("DistanceX", -1, 1, 1, 3, Q("88 mm")),
    Sketcher.Constraint("DistanceY", -1, 1, 0, 3, Q("48.5 mm")),
    Sketcher.Constraint("DistanceY", -1, 1, 1, 3, Q("60.2 mm")),
])
pad6 = doc.addObject("PartDesign::Pad", "Pad005")
body.addObject(pad6)
pad6.Profile = sketch15
pad6.Length = 2

# Sketch on XY plane
sketch16 = doc.addObject("Sketcher::SketchObject", "Sketch015")
body.addObject(sketch16)
sketch16.AttachmentSupport = (doc.XY_Plane, [""])
sketch16.MapMode = "FlatFace"
sketch16.AttachmentOffset = App.Placement(Vector(0, 0, 37.5), App.Rotation())
sketch16.addGeometry([
    Part.Circle(Vector(54, 48.5, 0), Vector(0, 0, 1), 1.1),
    Part.Circle(Vector(88, 60.2, 0), Vector(0, 0, 1), 1.1),
], False)
sketch16.addConstraint([
    Sketcher.Constraint("Equal", 0, 1),
    Sketcher.Constraint("Diameter", 0, Q("2.2 mm")),
    Sketcher.Constraint("DistanceX", -1, 1, 0, 3, Q("54 mm")),
    Sketcher.Constraint("DistanceX", -1, 1, 1, 3, Q("88 mm")),
    Sketcher.Constraint("DistanceY", -1, 1, 0, 3, Q("48.5 mm")),
    Sketcher.Constraint("DistanceY", -1, 1, 1, 3, Q("60.2 mm")),
])
pocket10 = doc.addObject("PartDesign::Pocket", "Pocket009")
body.addObject(pocket10)
pocket10.Profile = sketch16
pocket10.Type = "TwoLengths"
pocket10.Length = 1.9
pocket10.Length2 = 1.9
pocket10.Reversed = True

# Sketch on XY plane
sketch17 = doc.addObject("Sketcher::SketchObject", "Sketch016")
body.addObject(sketch17)
sketch17.AttachmentSupport = (doc.XY_Plane, [""])
sketch17.MapMode = "FlatFace"
sketch17.addGeometry([
    Part.LineSegment(Vector(10.2, 66, 0), Vector(25.8, 66, 0)),  # 0
    Part.ArcOfCircle(Part.Circle(Vector(25.8, 67.2, 0), Vector(0, 0, 1), 1.2), math.radians(-90), math.radians(0)),  # 1
    Part.LineSegment(Vector(27, 67.2, 0), Vector(27, 67.4, 0)),  # 2
    Part.ArcOfCircle(Part.Circle(Vector(25.8, 67.4, 0), Vector(0, 0, 1), 1.2), math.radians(0), math.radians(90)),  # 3
    Part.LineSegment(Vector(25.8, 68.6, 0), Vector(10.2, 68.6, 0)),  # 4
    Part.ArcOfCircle(Part.Circle(Vector(10.2, 67.4, 0), Vector(0, 0, 1), 1.2), math.radians(90), math.radians(180)),  # 5
    Part.LineSegment(Vector(9, 67.4, 0), Vector(9, 67.2, 0)),  # 6
    Part.ArcOfCircle(Part.Circle(Vector(10.2, 67.2, 0), Vector(0, 0, 1), 1.2), math.radians(-180), math.radians(-90)),  # 7
    Part.LineSegment(Vector(10.2, 71, 0), Vector(25.8, 71, 0)),  # 8
    Part.ArcOfCircle(Part.Circle(Vector(25.8, 72.2, 0), Vector(0, 0, 1), 1.2), math.radians(-90), math.radians(0)),  # 9
    Part.LineSegment(Vector(27, 72.2, 0), Vector(27, 72.4, 0)),  # 10
    Part.ArcOfCircle(Part.Circle(Vector(25.8, 72.4, 0), Vector(0, 0, 1), 1.2), math.radians(0), math.radians(90)),  # 11
    Part.LineSegment(Vector(25.8, 73.6, 0), Vector(10.2, 73.6, 0)),  # 12
    Part.ArcOfCircle(Part.Circle(Vector(10.2, 72.4, 0), Vector(0, 0, 1), 1.2), math.radians(90), math.radians(180)),  # 13
    Part.LineSegment(Vector(9, 72.4, 0), Vector(9, 72.2, 0)),  # 14
    Part.ArcOfCircle(Part.Circle(Vector(10.2, 72.2, 0), Vector(0, 0, 1), 1.2), math.radians(-180), math.radians(-90)),  # 15
    Part.LineSegment(Vector(10.2, 76, 0), Vector(25.8, 76, 0)),  # 16
    Part.ArcOfCircle(Part.Circle(Vector(25.8, 77.2, 0), Vector(0, 0, 1), 1.2), math.radians(-90), math.radians(0)),  # 17
    Part.LineSegment(Vector(27, 77.2, 0), Vector(27, 77.4, 0)),  # 18
    Part.ArcOfCircle(Part.Circle(Vector(25.8, 77.4, 0), Vector(0, 0, 1), 1.2), math.radians(0), math.radians(90)),  # 19
    Part.LineSegment(Vector(25.8, 78.6, 0), Vector(10.2, 78.6, 0)),  # 20
    Part.ArcOfCircle(Part.Circle(Vector(10.2, 77.4, 0), Vector(0, 0, 1), 1.2), math.radians(90), math.radians(180)),  # 21
    Part.LineSegment(Vector(9, 77.4, 0), Vector(9, 77.2, 0)),  # 22
    Part.ArcOfCircle(Part.Circle(Vector(10.2, 77.2, 0), Vector(0, 0, 1), 1.2), math.radians(-180), math.radians(-90)),  # 23
    Part.LineSegment(Vector(10.2, 81, 0), Vector(25.8, 81, 0)),  # 24
    Part.ArcOfCircle(Part.Circle(Vector(25.8, 82.2, 0), Vector(0, 0, 1), 1.2), math.radians(-90), math.radians(0)),  # 25
    Part.LineSegment(Vector(27, 82.2, 0), Vector(27, 82.4, 0)),  # 26
    Part.ArcOfCircle(Part.Circle(Vector(25.8, 82.4, 0), Vector(0, 0, 1), 1.2), math.radians(0), math.radians(90)),  # 27
    Part.LineSegment(Vector(25.8, 83.6, 0), Vector(10.2, 83.6, 0)),  # 28
    Part.ArcOfCircle(Part.Circle(Vector(10.2, 82.4, 0), Vector(0, 0, 1), 1.2), math.radians(90), math.radians(180)),  # 29
    Part.LineSegment(Vector(9, 82.4, 0), Vector(9, 82.2, 0)),  # 30
    Part.ArcOfCircle(Part.Circle(Vector(10.2, 82.2, 0), Vector(0, 0, 1), 1.2), math.radians(-180), math.radians(-90)),  # 31
], False)
sketch17.addConstraint([
    Sketcher.Constraint("Tangent", 0, 2, 1, 1),
    Sketcher.Constraint("Tangent", 1, 2, 2, 1),
    Sketcher.Constraint("Tangent", 2, 2, 3, 1),
    Sketcher.Constraint("Tangent", 3, 2, 4, 1),
    Sketcher.Constraint("Tangent", 4, 2, 5, 1),
    Sketcher.Constraint("Tangent", 5, 2, 6, 1),
    Sketcher.Constraint("Tangent", 6, 2, 7, 1),
    Sketcher.Constraint("Tangent", 7, 2, 0, 1),
    Sketcher.Constraint("Tangent", 8, 2, 9, 1),
    Sketcher.Constraint("Tangent", 9, 2, 10, 1),
    Sketcher.Constraint("Tangent", 10, 2, 11, 1),
    Sketcher.Constraint("Tangent", 11, 2, 12, 1),
    Sketcher.Constraint("Tangent", 12, 2, 13, 1),
    Sketcher.Constraint("Tangent", 13, 2, 14, 1),
    Sketcher.Constraint("Tangent", 14, 2, 15, 1),
    Sketcher.Constraint("Tangent", 15, 2, 8, 1),
    Sketcher.Constraint("Tangent", 16, 2, 17, 1),
    Sketcher.Constraint("Tangent", 17, 2, 18, 1),
    Sketcher.Constraint("Tangent", 18, 2, 19, 1),
    Sketcher.Constraint("Tangent", 19, 2, 20, 1),
    Sketcher.Constraint("Tangent", 20, 2, 21, 1),
    Sketcher.Constraint("Tangent", 21, 2, 22, 1),
    Sketcher.Constraint("Tangent", 22, 2, 23, 1),
    Sketcher.Constraint("Tangent", 23, 2, 16, 1),
    Sketcher.Constraint("Tangent", 24, 2, 25, 1),
    Sketcher.Constraint("Tangent", 25, 2, 26, 1),
    Sketcher.Constraint("Tangent", 26, 2, 27, 1),
    Sketcher.Constraint("Tangent", 27, 2, 28, 1),
    Sketcher.Constraint("Tangent", 28, 2, 29, 1),
    Sketcher.Constraint("Tangent", 29, 2, 30, 1),
    Sketcher.Constraint("Tangent", 30, 2, 31, 1),
    Sketcher.Constraint("Tangent", 31, 2, 24, 1),
    Sketcher.Constraint("Horizontal", 0),
    Sketcher.Constraint("Vertical", 2),
    Sketcher.Constraint("Horizontal", 4),
    Sketcher.Constraint("Vertical", 6),
    Sketcher.Constraint("Horizontal", 8),
    Sketcher.Constraint("Vertical", 10),
    Sketcher.Constraint("Horizontal", 12),
    Sketcher.Constraint("Vertical", 14),
    Sketcher.Constraint("Horizontal", 16),
    Sketcher.Constraint("Vertical", 18),
    Sketcher.Constraint("Horizontal", 20),
    Sketcher.Constraint("Vertical", 22),
    Sketcher.Constraint("Horizontal", 24),
    Sketcher.Constraint("Vertical", 26),
    Sketcher.Constraint("Horizontal", 28),
    Sketcher.Constraint("Vertical", 30),
    Sketcher.Constraint("Equal", 1, 3),
    Sketcher.Constraint("Equal", 3, 5),
    Sketcher.Constraint("Equal", 5, 7),
    Sketcher.Constraint("Equal", 7, 9),
    Sketcher.Constraint("Equal", 9, 11),
    Sketcher.Constraint("Equal", 11, 13),
    Sketcher.Constraint("Equal", 13, 15),
    Sketcher.Constraint("Equal", 15, 17),
    Sketcher.Constraint("Equal", 17, 19),
    Sketcher.Constraint("Equal", 19, 21),
    Sketcher.Constraint("Equal", 21, 23),
    Sketcher.Constraint("Equal", 23, 25),
    Sketcher.Constraint("Equal", 25, 27),
    Sketcher.Constraint("Equal", 27, 29),
    Sketcher.Constraint("Equal", 29, 31),
    Sketcher.Constraint("Vertical", 3, 3, 9, 3),
    Sketcher.Constraint("Vertical", 7, 3, 13, 3),
    Sketcher.Constraint("Vertical", 11, 3, 17, 3),
    Sketcher.Constraint("Vertical", 15, 3, 21, 3),
    Sketcher.Constraint("Vertical", 19, 3, 25, 3),
    Sketcher.Constraint("Vertical", 23, 3, 29, 3),
    Sketcher.Constraint("Equal", 6, 10),
    Sketcher.Constraint("Equal", 14, 18),
    Sketcher.Constraint("Equal", 22, 26),
    Sketcher.Constraint("Radius", 1, Q("1.2 mm")),
    Sketcher.Constraint("DistanceX", 0, 1, 0, 2, Q("15.6 mm")),
    Sketcher.Constraint("DistanceY", 2, 1, 2, 2, Q("0.2 mm")),
    Sketcher.Constraint("DistanceY", -1, 1, 0, 2, Q("66 mm")),
    Sketcher.Constraint("DistanceX", -1, 1, 1, 2, Q("27 mm")),
    Sketcher.Constraint("DistanceY", -1, 1, 8, 2, Q("71 mm")),
    Sketcher.Constraint("DistanceY", -1, 1, 16, 2, Q("76 mm")),
    Sketcher.Constraint("DistanceY", -1, 1, 24, 2, Q("81 mm")),
])
pocket11 = doc.addObject("PartDesign::Pocket", "Pocket010")
body.addObject(pocket11)
pocket11.Profile = sketch17
pocket11.Type = "ThroughAll"
pocket11.Midplane = True

doc.recompute()
